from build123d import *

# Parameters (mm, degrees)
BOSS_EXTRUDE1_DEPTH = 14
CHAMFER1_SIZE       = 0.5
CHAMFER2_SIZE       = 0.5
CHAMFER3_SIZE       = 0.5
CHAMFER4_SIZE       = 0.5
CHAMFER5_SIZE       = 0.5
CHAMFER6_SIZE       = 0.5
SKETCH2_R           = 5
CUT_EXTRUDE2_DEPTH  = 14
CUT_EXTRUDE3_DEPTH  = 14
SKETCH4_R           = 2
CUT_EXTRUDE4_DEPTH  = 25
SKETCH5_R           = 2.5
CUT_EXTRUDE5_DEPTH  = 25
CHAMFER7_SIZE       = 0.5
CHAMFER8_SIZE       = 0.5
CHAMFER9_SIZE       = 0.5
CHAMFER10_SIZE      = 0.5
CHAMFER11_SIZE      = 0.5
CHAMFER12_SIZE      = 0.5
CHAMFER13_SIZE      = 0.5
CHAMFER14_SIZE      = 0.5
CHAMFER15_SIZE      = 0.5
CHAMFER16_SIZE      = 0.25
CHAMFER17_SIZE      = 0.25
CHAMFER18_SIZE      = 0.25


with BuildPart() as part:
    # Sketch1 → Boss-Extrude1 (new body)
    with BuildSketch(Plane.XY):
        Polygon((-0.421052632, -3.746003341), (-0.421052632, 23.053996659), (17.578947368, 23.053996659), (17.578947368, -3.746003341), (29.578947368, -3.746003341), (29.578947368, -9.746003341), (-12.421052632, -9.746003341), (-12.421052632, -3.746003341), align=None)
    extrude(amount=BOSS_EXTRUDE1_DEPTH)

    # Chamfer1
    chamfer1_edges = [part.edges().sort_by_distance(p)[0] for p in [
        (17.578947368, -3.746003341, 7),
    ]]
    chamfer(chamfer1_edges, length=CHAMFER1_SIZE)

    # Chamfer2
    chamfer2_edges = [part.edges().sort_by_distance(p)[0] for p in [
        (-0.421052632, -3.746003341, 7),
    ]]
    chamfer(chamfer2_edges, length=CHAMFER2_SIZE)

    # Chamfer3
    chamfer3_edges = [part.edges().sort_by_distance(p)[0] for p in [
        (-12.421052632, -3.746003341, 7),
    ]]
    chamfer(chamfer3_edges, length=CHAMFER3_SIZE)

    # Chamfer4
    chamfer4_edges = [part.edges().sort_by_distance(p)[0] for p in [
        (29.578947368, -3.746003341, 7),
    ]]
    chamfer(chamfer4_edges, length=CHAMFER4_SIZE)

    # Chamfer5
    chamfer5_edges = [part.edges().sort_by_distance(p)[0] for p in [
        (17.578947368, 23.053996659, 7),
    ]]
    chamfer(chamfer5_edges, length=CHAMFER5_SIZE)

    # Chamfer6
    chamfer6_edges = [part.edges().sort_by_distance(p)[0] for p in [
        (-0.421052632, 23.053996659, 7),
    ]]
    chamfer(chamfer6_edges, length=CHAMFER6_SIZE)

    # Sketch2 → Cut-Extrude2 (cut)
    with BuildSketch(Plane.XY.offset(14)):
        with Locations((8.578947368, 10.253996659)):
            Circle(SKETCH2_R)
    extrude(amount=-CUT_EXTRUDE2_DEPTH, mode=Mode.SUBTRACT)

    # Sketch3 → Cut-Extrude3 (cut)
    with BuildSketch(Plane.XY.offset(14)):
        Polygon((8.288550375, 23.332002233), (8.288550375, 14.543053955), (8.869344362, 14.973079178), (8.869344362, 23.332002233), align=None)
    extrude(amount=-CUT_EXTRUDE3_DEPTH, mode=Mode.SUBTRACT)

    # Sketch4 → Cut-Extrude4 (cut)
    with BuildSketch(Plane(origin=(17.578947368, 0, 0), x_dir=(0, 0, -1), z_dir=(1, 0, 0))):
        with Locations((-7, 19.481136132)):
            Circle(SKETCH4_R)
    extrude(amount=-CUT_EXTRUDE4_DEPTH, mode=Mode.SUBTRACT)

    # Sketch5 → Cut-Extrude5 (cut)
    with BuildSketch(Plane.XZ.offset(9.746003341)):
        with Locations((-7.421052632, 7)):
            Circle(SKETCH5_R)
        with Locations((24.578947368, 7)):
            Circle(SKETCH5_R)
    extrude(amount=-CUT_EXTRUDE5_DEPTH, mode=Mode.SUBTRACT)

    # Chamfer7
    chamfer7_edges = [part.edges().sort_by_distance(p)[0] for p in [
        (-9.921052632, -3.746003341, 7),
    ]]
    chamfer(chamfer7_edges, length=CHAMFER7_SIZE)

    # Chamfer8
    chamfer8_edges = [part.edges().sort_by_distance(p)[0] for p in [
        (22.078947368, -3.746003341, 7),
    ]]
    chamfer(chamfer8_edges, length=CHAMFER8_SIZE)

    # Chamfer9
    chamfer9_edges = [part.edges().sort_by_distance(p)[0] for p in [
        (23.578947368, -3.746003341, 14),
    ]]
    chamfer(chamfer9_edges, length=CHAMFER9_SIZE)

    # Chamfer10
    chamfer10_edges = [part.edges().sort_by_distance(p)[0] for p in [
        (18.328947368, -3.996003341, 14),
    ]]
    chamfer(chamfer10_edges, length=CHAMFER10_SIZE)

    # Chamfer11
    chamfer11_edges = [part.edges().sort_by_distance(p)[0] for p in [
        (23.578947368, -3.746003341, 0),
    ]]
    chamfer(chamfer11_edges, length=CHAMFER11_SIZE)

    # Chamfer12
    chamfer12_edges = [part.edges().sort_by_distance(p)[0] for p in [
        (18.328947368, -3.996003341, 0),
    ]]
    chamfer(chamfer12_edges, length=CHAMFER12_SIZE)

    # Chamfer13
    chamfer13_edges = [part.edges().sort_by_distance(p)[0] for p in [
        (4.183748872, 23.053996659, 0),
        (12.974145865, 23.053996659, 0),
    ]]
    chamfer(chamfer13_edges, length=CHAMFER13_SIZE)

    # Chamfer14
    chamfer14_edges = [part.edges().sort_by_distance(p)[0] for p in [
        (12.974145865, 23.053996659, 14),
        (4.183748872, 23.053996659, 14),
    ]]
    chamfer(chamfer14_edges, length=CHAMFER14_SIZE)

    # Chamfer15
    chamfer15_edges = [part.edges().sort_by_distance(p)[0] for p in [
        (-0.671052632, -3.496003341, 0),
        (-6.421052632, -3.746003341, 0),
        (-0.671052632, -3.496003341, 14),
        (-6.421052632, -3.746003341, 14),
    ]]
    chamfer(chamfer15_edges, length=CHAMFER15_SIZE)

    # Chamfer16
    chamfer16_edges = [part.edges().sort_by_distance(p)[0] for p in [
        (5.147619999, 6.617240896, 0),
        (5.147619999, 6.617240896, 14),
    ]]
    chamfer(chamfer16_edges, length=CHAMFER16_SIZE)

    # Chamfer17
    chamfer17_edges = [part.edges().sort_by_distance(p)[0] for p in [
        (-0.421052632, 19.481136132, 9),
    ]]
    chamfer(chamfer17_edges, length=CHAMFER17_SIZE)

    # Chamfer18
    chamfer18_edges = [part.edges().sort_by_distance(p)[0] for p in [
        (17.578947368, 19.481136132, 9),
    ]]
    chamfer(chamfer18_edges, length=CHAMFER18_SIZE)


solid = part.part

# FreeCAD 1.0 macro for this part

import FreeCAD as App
import Part
import Sketcher
from FreeCAD import Vector
Q = App.Units.Quantity


def edges_at(feature, points):
    """Names of the edges that pass closest to the given points."""
    edges = feature.Shape.Edges
    near = lambda p: min(range(len(edges)), key=lambda i: edges[i].distToShape(Part.Vertex(*p))[0])
    return sorted({f"Edge{near(p) + 1}" for p in points})

doc = App.newDocument("Part")
params = doc.addObject("Spreadsheet::Sheet", "Params")
for row, (alias, value) in enumerate([
    ("sketch1_width", "12 mm"),
    ("sketch1_width2", "42 mm"),
    ("sketch1_height", "6 mm"),
    ("sketch1_height2", "26.8 mm"),
    ("pad1_length", "14 mm"),
    ("chamfer_size", "0.5 mm"),
    ("chamfer2_size", "0.5 mm"),
    ("chamfer3_size", "0.5 mm"),
    ("chamfer4_size", "0.5 mm"),
    ("chamfer5_size", "0.5 mm"),
    ("chamfer6_size", "0.5 mm"),
    ("sketch2_diameter", "10 mm"),
    ("pocket1_length", "14 mm"),
    ("pocket2_length", "14 mm"),
    ("sketch4_diameter", "4 mm"),
    ("pocket3_length", "25 mm"),
    ("sketch5_diameter", "5 mm"),
    ("pocket4_length", "25 mm"),
    ("chamfer7_size", "0.5 mm"),
    ("chamfer8_size", "0.5 mm"),
    ("chamfer9_size", "0.5 mm"),
    ("chamfer10_size", "0.5 mm"),
    ("chamfer11_size", "0.5 mm"),
    ("chamfer12_size", "0.5 mm"),
    ("chamfer13_size", "0.5 mm"),
    ("chamfer14_size", "0.5 mm"),
    ("chamfer15_size", "0.5 mm"),
    ("chamfer16_size", "0.25 mm"),
    ("chamfer17_size", "0.25 mm"),
    ("chamfer18_size", "0.25 mm"),
], start=1):
    params.set(f"A{row}", alias)
    params.set(f"B{row}", "=" + value)
    params.setAlias(f"B{row}", alias)

body = doc.addObject("PartDesign::Body", "Body")

# Sketch on XY plane
sketch1 = doc.addObject("Sketcher::SketchObject", "Sketch")
body.addObject(sketch1)
sketch1.AttachmentSupport = (doc.XY_Plane, [""])
sketch1.MapMode = "FlatFace"
sketch1.addGeometry(Part.LineSegment(Vector(0, 23, 0), Vector(0, -4, 0)), False)
sketch1.addGeometry(Part.LineSegment(Vector(0, -4, 0), Vector(-12, -4, 0)), False)
sketch1.addGeometry(Part.LineSegment(Vector(-12, -4, 0), Vector(-12, -10, 0)), False)
sketch1.addGeometry(Part.LineSegment(Vector(-12, -10, 0), Vector(30, -10, 0)), False)
sketch1.addGeometry(Part.LineSegment(Vector(30, -10, 0), Vector(30, -4, 0)), False)
sketch1.addGeometry(Part.LineSegment(Vector(30, -4, 0), Vector(18, -4, 0)), False)
sketch1.addGeometry(Part.LineSegment(Vector(18, -4, 0), Vector(18, 23, 0)), False)
sketch1.addGeometry(Part.LineSegment(Vector(18, 23, 0), Vector(0, 23, 0)), False)
sketch1.addConstraint(Sketcher.Constraint("Coincident", 0, 2, 1, 1))
sketch1.addConstraint(Sketcher.Constraint("Coincident", 1, 2, 2, 1))
sketch1.addConstraint(Sketcher.Constraint("Coincident", 2, 2, 3, 1))
sketch1.addConstraint(Sketcher.Constraint("Coincident", 3, 2, 4, 1))
sketch1.addConstraint(Sketcher.Constraint("Coincident", 4, 2, 5, 1))
sketch1.addConstraint(Sketcher.Constraint("Coincident", 5, 2, 6, 1))
sketch1.addConstraint(Sketcher.Constraint("Coincident", 6, 2, 7, 1))
sketch1.addConstraint(Sketcher.Constraint("Coincident", 7, 2, 0, 1))
sketch1.addConstraint(Sketcher.Constraint("Vertical", 0))
sketch1.addConstraint(Sketcher.Constraint("Horizontal", 1))
sketch1.addConstraint(Sketcher.Constraint("Vertical", 2))
sketch1.addConstraint(Sketcher.Constraint("Horizontal", 3))
sketch1.addConstraint(Sketcher.Constraint("Vertical", 4))
sketch1.addConstraint(Sketcher.Constraint("Horizontal", 5))
sketch1.addConstraint(Sketcher.Constraint("Vertical", 6))
sketch1.addConstraint(Sketcher.Constraint("Horizontal", 7))
sketch1.addConstraint(Sketcher.Constraint("Horizontal", 1, 2, 4, 2))
sketch1.addConstraint(Sketcher.Constraint("Equal", 1, 5))
sketch1.addConstraint(Sketcher.Constraint("DistanceX", 1, 2, 1, 1, Q("12 mm")))
sketch1.addConstraint(Sketcher.Constraint("DistanceX", 3, 1, 3, 2, Q("42 mm")))
sketch1.addConstraint(Sketcher.Constraint("DistanceY", 2, 2, 2, 1, Q("6 mm")))
sketch1.addConstraint(Sketcher.Constraint("DistanceY", 0, 2, 0, 1, Q("26.8 mm")))
sketch1.addConstraint(Sketcher.Constraint("DistanceX", 0, 2, -1, 1, Q("0.421053 mm")))
sketch1.addConstraint(Sketcher.Constraint("DistanceY", 0, 2, -1, 1, Q("3.746003 mm")))
sketch1.setExpression("Constraints[18]", "Params.sketch1_width")
sketch1.setExpression("Constraints[19]", "Params.sketch1_width2")
sketch1.setExpression("Constraints[20]", "Params.sketch1_height")
sketch1.setExpression("Constraints[21]", "Params.sketch1_height2")
pad1 = doc.addObject("PartDesign::Pad", "Pad")
body.addObject(pad1)
pad1.Profile = sketch1
pad1.setExpression("Length", "Params.pad1_length")
doc.recompute()

chamfer = doc.addObject("PartDesign::Chamfer", "Chamfer")
body.addObject(chamfer)
chamfer.Base = (pad1, edges_at(pad1, [(17.579, -3.746, 7)]))
chamfer.setExpression("Size", "Params.chamfer_size")
doc.recompute()

chamfer2 = doc.addObject("PartDesign::Chamfer", "Chamfer001")
body.addObject(chamfer2)
chamfer2.Base = (chamfer, edges_at(chamfer, [(-0.421, -3.746, 7)]))
chamfer2.setExpression("Size", "Params.chamfer2_size")
doc.recompute()

chamfer3 = doc.addObject("PartDesign::Chamfer", "Chamfer002")
body.addObject(chamfer3)
chamfer3.Base = (chamfer2, edges_at(chamfer2, [(-12.421, -3.746, 7)]))
chamfer3.setExpression("Size", "Params.chamfer3_size")
doc.recompute()

chamfer4 = doc.addObject("PartDesign::Chamfer", "Chamfer003")
body.addObject(chamfer4)
chamfer4.Base = (chamfer3, edges_at(chamfer3, [(29.579, -3.746, 7)]))
chamfer4.setExpression("Size", "Params.chamfer4_size")
doc.recompute()

chamfer5 = doc.addObject("PartDesign::Chamfer", "Chamfer004")
body.addObject(chamfer5)
chamfer5.Base = (chamfer4, edges_at(chamfer4, [(17.579, 23.054, 7)]))
chamfer5.setExpression("Size", "Params.chamfer5_size")
doc.recompute()

chamfer6 = doc.addObject("PartDesign::Chamfer", "Chamfer005")
body.addObject(chamfer6)
chamfer6.Base = (chamfer5, edges_at(chamfer5, [(-0.421, 23.054, 7)]))
chamfer6.setExpression("Size", "Params.chamfer6_size")

# Sketch on XY plane
sketch2 = doc.addObject("Sketcher::SketchObject", "Sketch001")
body.addObject(sketch2)
sketch2.AttachmentSupport = (doc.XY_Plane, [""])
sketch2.MapMode = "FlatFace"
sketch2.AttachmentOffset = App.Placement(Vector(0, 0, 14), App.Rotation())
sketch2.addGeometry(Part.Circle(Vector(9, 10, 0), Vector(0, 0, 1), 5), False)
sketch2.addConstraint(Sketcher.Constraint("Diameter", 0, Q("10 mm")))
sketch2.addConstraint(Sketcher.Constraint("DistanceX", -1, 1, 0, 3, Q("8.578947 mm")))
sketch2.addConstraint(Sketcher.Constraint("DistanceY", -1, 1, 0, 3, Q("10.253997 mm")))
sketch2.setExpression("Constraints[0]", "Params.sketch2_diameter")
pocket1 = doc.addObject("PartDesign::Pocket", "Pocket")
body.addObject(pocket1)
pocket1.Profile = sketch2
pocket1.setExpression("Length", "Params.pocket1_length")

# Sketch on XY plane
sketch3 = doc.addObject("Sketcher::SketchObject", "Sketch002")
body.addObject(sketch3)
sketch3.AttachmentSupport = (doc.XY_Plane, [""])
sketch3.MapMode = "FlatFace"
sketch3.AttachmentOffset = App.Placement(Vector(0, 0, 14), App.Rotation())
sketch3.addGeometry(Part.LineSegment(Vector(8.3, 23.3, 0), Vector(8.3, 14.5, 0)), False)
sketch3.addGeometry(Part.LineSegment(Vector(8.3, 14.5, 0), Vector(8.9, 15, 0)), False)
sketch3.addGeometry(Part.LineSegment(Vector(8.9, 15, 0), Vector(8.9, 23.3, 0)), False)
sketch3.addGeometry(Part.LineSegment(Vector(8.9, 23.3, 0), Vector(8.3, 23.3, 0)), False)
sketch3.addConstraint(Sketcher.Constraint("Coincident", 0, 2, 1, 1))
sketch3.addConstraint(Sketcher.Constraint("Coincident", 1, 2, 2, 1))
sketch3.addConstraint(Sketcher.Constraint("Coincident", 2, 2, 3, 1))
sketch3.addConstraint(Sketcher.Constraint("Coincident", 3, 2, 0, 1))
sketch3.addConstraint(Sketcher.Constraint("Vertical", 0))
sketch3.addConstraint(Sketcher.Constraint("Vertical", 2))
sketch3.addConstraint(Sketcher.Constraint("Horizontal", 3))
sketch3.addConstraint(Sketcher.Constraint("DistanceY", 0, 2, 0, 1, Q("8.788948 mm")))
sketch3.addConstraint(Sketcher.Constraint("DistanceX", 3, 2, 3, 1, Q("0.580794 mm")))
sketch3.addConstraint(Sketcher.Constraint("DistanceY", 2, 1, 2, 2, Q("8.358923 mm")))
sketch3.addConstraint(Sketcher.Constraint("DistanceX", -1, 1, 0, 2, Q("8.28855 mm")))
sketch3.addConstraint(Sketcher.Constraint("DistanceY", -1, 1, 1, 2, Q("14.973079 mm")))
pocket2 = doc.addObject("PartDesign::Pocket", "Pocket001")
body.addObject(pocket2)
pocket2.Profile = sketch3
pocket2.setExpression("Length", "Params.pocket2_length")

# Sketch on YZ plane
sketch4 = doc.addObject("Sketcher::SketchObject", "Sketch003")
body.addObject(sketch4)
sketch4.AttachmentSupport = (doc.YZ_Plane, [""])
sketch4.MapMode = "FlatFace"
sketch4.AttachmentOffset = App.Placement(Vector(0, 0, 17.578947), App.Rotation())
sketch4.addGeometry(Part.Circle(Vector(19.5, 7, 0), Vector(0, 0, 1), 2), False)
sketch4.addConstraint(Sketcher.Constraint("Diameter", 0, Q("4 mm")))
sketch4.addConstraint(Sketcher.Constraint("DistanceY", -1, 1, 0, 3, Q("7 mm")))
sketch4.addConstraint(Sketcher.Constraint("DistanceX", -1, 1, 0, 3, Q("19.481136 mm")))
sketch4.setExpression("Constraints[0]", "Params.sketch4_diameter")
pocket3 = doc.addObject("PartDesign::Pocket", "Pocket002")
body.addObject(pocket3)
pocket3.Profile = sketch4
pocket3.setExpression("Length", "Params.pocket3_length")

# Sketch on XZ plane
sketch5 = doc.addObject("Sketcher::SketchObject", "Sketch004")
body.addObject(sketch5)
sketch5.AttachmentSupport = (doc.XZ_Plane, [""])
sketch5.MapMode = "FlatFace"
sketch5.AttachmentOffset = App.Placement(Vector(0, 0, 9.746003), App.Rotation())
sketch5.addGeometry(Part.Circle(Vector(-7.4, 7, 0), Vector(0, 0, 1), 2.5), False)
sketch5.addGeometry(Part.Circle(Vector(24.6, 7, 0), Vector(0, 0, 1), 2.5), False)
sketch5.addConstraint(Sketcher.Constraint("Equal", 0, 1))
sketch5.addConstraint(Sketcher.Constraint("Horizontal", 0, 3, 1, 3))
sketch5.addConstraint(Sketcher.Constraint("Diameter", 0, Q("5 mm")))
sketch5.addConstraint(Sketcher.Constraint("DistanceY", -1, 1, 0, 3, Q("7 mm")))
sketch5.addConstraint(Sketcher.Constraint("DistanceX", 0, 3, 1, 3, Q("32 mm")))
sketch5.addConstraint(Sketcher.Constraint("DistanceX", 0, 3, -1, 1, Q("7.421053 mm")))
sketch5.setExpression("Constraints[2]", "Params.sketch5_diameter")
pocket4 = doc.addObject("PartDesign::Pocket", "Pocket003")
body.addObject(pocket4)
pocket4.Profile = sketch5
pocket4.setExpression("Length", "Params.pocket4_length")
doc.recompute()

chamfer7 = doc.addObject("PartDesign::Chamfer", "Chamfer006")
body.addObject(chamfer7)
chamfer7.Base = (pocket4, edges_at(pocket4, [(-9.921, -3.746, 7)]))
chamfer7.setExpression("Size", "Params.chamfer7_size")
doc.recompute()

chamfer8 = doc.addObject("PartDesign::Chamfer", "Chamfer007")
body.addObject(chamfer8)
chamfer8.Base = (chamfer7, edges_at(chamfer7, [(22.079, -3.746, 7)]))
chamfer8.setExpression("Size", "Params.chamfer8_size")
doc.recompute()

chamfer9 = doc.addObject("PartDesign::Chamfer", "Chamfer008")
body.addObject(chamfer9)
chamfer9.Base = (chamfer8, edges_at(chamfer8, [(23.579, -3.746, 14)]))
chamfer9.setExpression("Size", "Params.chamfer9_size")
doc.recompute()

chamfer10 = doc.addObject("PartDesign::Chamfer", "Chamfer009")
body.addObject(chamfer10)
chamfer10.Base = (chamfer9, edges_at(chamfer9, [(18.079, -3.746, 14)]))
chamfer10.setExpression("Size", "Params.chamfer10_size")
doc.recompute()

chamfer11 = doc.addObject("PartDesign::Chamfer", "Chamfer010")
body.addObject(chamfer11)
chamfer11.Base = (chamfer10, edges_at(chamfer10, [(23.579, -3.746, 0)]))
chamfer11.setExpression("Size", "Params.chamfer11_size")
doc.recompute()

chamfer12 = doc.addObject("PartDesign::Chamfer", "Chamfer011")
body.addObject(chamfer12)
chamfer12.Base = (chamfer11, edges_at(chamfer11, [(18.079, -3.746, 0)]))
chamfer12.setExpression("Size", "Params.chamfer12_size")
doc.recompute()

chamfer13 = doc.addObject("PartDesign::Chamfer", "Chamfer012")
body.addObject(chamfer13)
chamfer13.Base = (chamfer12, edges_at(chamfer12, [(4.184, 23.054, 0), (12.974, 23.054, 0)]))
chamfer13.setExpression("Size", "Params.chamfer13_size")
doc.recompute()

chamfer14 = doc.addObject("PartDesign::Chamfer", "Chamfer013")
body.addObject(chamfer14)
chamfer14.Base = (chamfer13, edges_at(chamfer13, [(12.974, 23.054, 14), (4.184, 23.054, 14)]))
chamfer14.setExpression("Size", "Params.chamfer14_size")
doc.recompute()

chamfer15 = doc.addObject("PartDesign::Chamfer", "Chamfer014")
body.addObject(chamfer15)
chamfer15.Base = (chamfer14, edges_at(chamfer14, [
    (-0.671, -3.496, 0),
    (-6.421, -3.746, 0),
    (-0.671, -3.496, 14),
    (-6.421, -3.746, 14),
]))
chamfer15.setExpression("Size", "Params.chamfer15_size")
doc.recompute()

chamfer16 = doc.addObject("PartDesign::Chamfer", "Chamfer015")
body.addObject(chamfer16)
chamfer16.Base = (chamfer15, edges_at(chamfer15, [(5.148, 6.617, 0), (5.148, 6.617, 14)]))
chamfer16.setExpression("Size", "Params.chamfer16_size")
doc.recompute()

chamfer17 = doc.addObject("PartDesign::Chamfer", "Chamfer016")
body.addObject(chamfer17)
chamfer17.Base = (chamfer16, edges_at(chamfer16, [(-0.421, 19.481, 9)]))
chamfer17.setExpression("Size", "Params.chamfer17_size")
doc.recompute()

chamfer18 = doc.addObject("PartDesign::Chamfer", "Chamfer017")
body.addObject(chamfer18)
chamfer18.Base = (chamfer17, edges_at(chamfer17, [(17.579, 19.481, 9)]))
chamfer18.setExpression("Size", "Params.chamfer18_size")

doc.recompute()
